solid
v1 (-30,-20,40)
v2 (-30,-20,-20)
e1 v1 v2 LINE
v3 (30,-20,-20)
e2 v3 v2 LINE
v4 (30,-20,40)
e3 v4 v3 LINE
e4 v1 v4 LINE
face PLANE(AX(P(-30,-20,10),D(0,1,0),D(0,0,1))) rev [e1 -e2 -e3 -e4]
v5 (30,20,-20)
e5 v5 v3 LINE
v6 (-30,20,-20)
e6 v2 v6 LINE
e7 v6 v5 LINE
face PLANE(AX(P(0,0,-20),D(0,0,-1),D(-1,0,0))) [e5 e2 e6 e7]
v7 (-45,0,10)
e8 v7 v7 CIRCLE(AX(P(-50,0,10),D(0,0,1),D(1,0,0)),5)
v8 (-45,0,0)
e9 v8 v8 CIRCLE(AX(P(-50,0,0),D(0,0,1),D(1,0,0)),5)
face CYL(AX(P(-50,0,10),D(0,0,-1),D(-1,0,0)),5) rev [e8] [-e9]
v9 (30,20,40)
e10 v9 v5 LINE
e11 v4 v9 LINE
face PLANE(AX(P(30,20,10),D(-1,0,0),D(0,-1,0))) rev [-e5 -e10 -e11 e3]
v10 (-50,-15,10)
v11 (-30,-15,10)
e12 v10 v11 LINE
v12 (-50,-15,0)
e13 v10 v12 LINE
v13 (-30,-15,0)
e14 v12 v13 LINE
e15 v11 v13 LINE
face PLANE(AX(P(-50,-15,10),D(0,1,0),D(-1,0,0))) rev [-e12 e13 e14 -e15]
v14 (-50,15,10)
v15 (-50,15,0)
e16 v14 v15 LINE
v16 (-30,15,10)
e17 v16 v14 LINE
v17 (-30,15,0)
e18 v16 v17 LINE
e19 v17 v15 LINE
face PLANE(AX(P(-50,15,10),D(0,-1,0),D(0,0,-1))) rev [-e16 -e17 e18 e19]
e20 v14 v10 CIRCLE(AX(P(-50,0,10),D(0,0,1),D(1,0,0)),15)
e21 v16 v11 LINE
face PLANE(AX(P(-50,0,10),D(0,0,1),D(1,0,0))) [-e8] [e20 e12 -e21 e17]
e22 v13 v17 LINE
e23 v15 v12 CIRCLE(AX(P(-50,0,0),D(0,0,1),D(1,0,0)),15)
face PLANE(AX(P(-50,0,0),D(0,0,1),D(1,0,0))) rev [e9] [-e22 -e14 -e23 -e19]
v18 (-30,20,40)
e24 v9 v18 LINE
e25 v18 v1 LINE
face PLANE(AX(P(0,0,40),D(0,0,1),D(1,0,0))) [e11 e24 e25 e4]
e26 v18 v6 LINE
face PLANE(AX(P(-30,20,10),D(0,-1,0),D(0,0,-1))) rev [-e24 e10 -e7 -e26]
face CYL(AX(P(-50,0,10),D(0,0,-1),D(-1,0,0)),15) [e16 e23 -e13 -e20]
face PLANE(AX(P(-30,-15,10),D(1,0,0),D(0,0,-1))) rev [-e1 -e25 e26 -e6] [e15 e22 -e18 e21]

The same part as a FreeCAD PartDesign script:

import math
import FreeCAD as App
import Part
import Sketcher
from FreeCAD import Vector
Q = App.Units.Quantity


def add_polygon(sketch, points):
    """Adds a closed chain of lines whose ends are joined by coincident constraints."""
    first, n = sketch.GeometryCount, len(points)
    for a, b in zip(points, points[1:] + points[:1]):
        sketch.addGeometry(Part.LineSegment(App.Vector(*a, 0), App.Vector(*b, 0)), False)
    for i in range(n):
        sketch.addConstraint(Sketcher.Constraint("Coincident", first + i, 2, first + (i + 1) % n, 1))

doc = App.newDocument("Part")
body = doc.addObject("PartDesign::Body", "Body")

# Sketch on XY plane
sketch1 = body.newObject("Sketcher::SketchObject", "Sketch")
sketch1.AttachmentSupport = (doc.getObject("XY_Plane"), [""])
sketch1.MapMode = "FlatFace"
sketch1.addGeometry([
    Part.LineSegment(Vector(-30, -15, 0), Vector(-30, -20, 0)),  # 0
    Part.LineSegment(Vector(-30, -20, 0), Vector(30, -20, 0)),  # 1
    Part.LineSegment(Vector(30, -20, 0), Vector(30, 20, 0)),  # 2
    Part.LineSegment(Vector(30, 20, 0), Vector(-30, 20, 0)),  # 3
    Part.LineSegment(Vector(-30, 20, 0), Vector(-30, 15, 0)),  # 4
    Part.LineSegment(Vector(-30, 15, 0), Vector(-50, 15, 0)),  # 5
    Part.ArcOfCircle(Part.Circle(Vector(-50, 0, 0), Vector(0, 0, 1), 15), math.radians(90), math.radians(270)),  # 6
    Part.LineSegment(Vector(-50, -15, 0), Vector(-30, -15, 0)),  # 7
    Part.Circle(Vector(-50, 0, 0), Vector(0, 0, 1), 5),  # 8
], False)
sketch1.addConstraint([
    Sketcher.Constraint("Coincident", 0, 2, 1, 1),
    Sketcher.Constraint("Coincident", 1, 2, 2, 1),
    Sketcher.Constraint("Coincident", 2, 2, 3, 1),
    Sketcher.Constraint("Coincident", 3, 2, 4, 1),
    Sketcher.Constraint("Coincident", 4, 2, 5, 1),
    Sketcher.Constraint("Tangent", 5, 2, 6, 1),
    Sketcher.Constraint("Tangent", 6, 2, 7, 1),
    Sketcher.Constraint("Coincident", 7, 2, 0, 1),
    Sketcher.Constraint("Vertical", 0),
    Sketcher.Constraint("Horizontal", 1),
    Sketcher.Constraint("Vertical", 2),
    Sketcher.Constraint("Horizontal", 3),
    Sketcher.Constraint("Vertical", 4),
    Sketcher.Constraint("Horizontal", 5),
    Sketcher.Constraint("Horizontal", 7),
    Sketcher.Constraint("Coincident", 8, 3, 6, 3),
    Sketcher.Constraint("Symmetric", 0, 2, 2, 2, -1, 1),
    Sketcher.Constraint("Symmetric", 4, 2, 7, 2, -1),
    Sketcher.Constraint("Diameter", 8, Q("10 mm")),
    Sketcher.Constraint("Radius", 6, Q("15 mm")),
    Sketcher.Constraint("DistanceX", 1, 1, 1, 2, Q("60 mm")),
    Sketcher.Constraint("DistanceX", 5, 2, 5, 1, Q("20 mm")),
    Sketcher.Constraint("DistanceY", 0, 2, 0, 1, Q("5 mm")),
])
pad1 = body.newObject("PartDesign::Pad", "Pad")
pad1.Profile = sketch1
pad1.Length = 10

# Sketch on XY plane
sketch2 = body.newObject("Sketcher::SketchObject", "Sketch001")
sketch2.AttachmentSupport = (doc.getObject("XY_Plane"), [""])
sketch2.MapMode = "FlatFace"
sketch2.AttachmentOffset = App.Placement(Vector(0, 0, 10), App.Rotation())
add_polygon(sketch2, [(-30, 20), (-30, -20), (30, -20), (30, 20)])  # lines 0-3
sketch2.addConstraint([
    Sketcher.Constraint("Vertical", 0),
    Sketcher.Constraint("Horizontal", 1),
    Sketcher.Constraint("Vertical", 2),
    Sketcher.Constraint("Horizontal", 3),
    Sketcher.Constraint("Symmetric", 0, 2, 2, 2, -1, 1),
    Sketcher.Constraint("DistanceX", 1, 1, 1, 2, Q("60 mm")),
    Sketcher.Constraint("DistanceY", 0, 2, 0, 1, Q("40 mm")),
])
pad2 = body.newObject("PartDesign::Pad", "Pad001")
pad2.Profile = sketch2
pad2.Length = 30

# Sketch on XY plane
sketch3 = body.newObject("Sketcher::SketchObject", "Sketch002")
sketch3.AttachmentSupport = (doc.getObject("XY_Plane"), [""])
sketch3.MapMode = "FlatFace"
add_polygon(sketch3, [(30, 20), (30, -20), (-30, -20), (-30, 20)])  # lines 0-3
sketch3.addConstraint([
    Sketcher.Constraint("Vertical", 0),
    Sketcher.Constraint("Horizontal", 1),
    Sketcher.Constraint("Vertical", 2),
    Sketcher.Constraint("Horizontal", 3),
    Sketcher.Constraint("Symmetric", 0, 2, 2, 2, -1, 1),
    Sketcher.Constraint("DistanceX", 1, 2, 1, 1, Q("60 mm")),
    Sketcher.Constraint("DistanceY", 0, 2, 0, 1, Q("40 mm")),
])
pad3 = body.newObject("PartDesign::Pad", "Pad002")
pad3.Profile = sketch3
pad3.Length = 20
pad3.Reversed = True

doc.recompute()
